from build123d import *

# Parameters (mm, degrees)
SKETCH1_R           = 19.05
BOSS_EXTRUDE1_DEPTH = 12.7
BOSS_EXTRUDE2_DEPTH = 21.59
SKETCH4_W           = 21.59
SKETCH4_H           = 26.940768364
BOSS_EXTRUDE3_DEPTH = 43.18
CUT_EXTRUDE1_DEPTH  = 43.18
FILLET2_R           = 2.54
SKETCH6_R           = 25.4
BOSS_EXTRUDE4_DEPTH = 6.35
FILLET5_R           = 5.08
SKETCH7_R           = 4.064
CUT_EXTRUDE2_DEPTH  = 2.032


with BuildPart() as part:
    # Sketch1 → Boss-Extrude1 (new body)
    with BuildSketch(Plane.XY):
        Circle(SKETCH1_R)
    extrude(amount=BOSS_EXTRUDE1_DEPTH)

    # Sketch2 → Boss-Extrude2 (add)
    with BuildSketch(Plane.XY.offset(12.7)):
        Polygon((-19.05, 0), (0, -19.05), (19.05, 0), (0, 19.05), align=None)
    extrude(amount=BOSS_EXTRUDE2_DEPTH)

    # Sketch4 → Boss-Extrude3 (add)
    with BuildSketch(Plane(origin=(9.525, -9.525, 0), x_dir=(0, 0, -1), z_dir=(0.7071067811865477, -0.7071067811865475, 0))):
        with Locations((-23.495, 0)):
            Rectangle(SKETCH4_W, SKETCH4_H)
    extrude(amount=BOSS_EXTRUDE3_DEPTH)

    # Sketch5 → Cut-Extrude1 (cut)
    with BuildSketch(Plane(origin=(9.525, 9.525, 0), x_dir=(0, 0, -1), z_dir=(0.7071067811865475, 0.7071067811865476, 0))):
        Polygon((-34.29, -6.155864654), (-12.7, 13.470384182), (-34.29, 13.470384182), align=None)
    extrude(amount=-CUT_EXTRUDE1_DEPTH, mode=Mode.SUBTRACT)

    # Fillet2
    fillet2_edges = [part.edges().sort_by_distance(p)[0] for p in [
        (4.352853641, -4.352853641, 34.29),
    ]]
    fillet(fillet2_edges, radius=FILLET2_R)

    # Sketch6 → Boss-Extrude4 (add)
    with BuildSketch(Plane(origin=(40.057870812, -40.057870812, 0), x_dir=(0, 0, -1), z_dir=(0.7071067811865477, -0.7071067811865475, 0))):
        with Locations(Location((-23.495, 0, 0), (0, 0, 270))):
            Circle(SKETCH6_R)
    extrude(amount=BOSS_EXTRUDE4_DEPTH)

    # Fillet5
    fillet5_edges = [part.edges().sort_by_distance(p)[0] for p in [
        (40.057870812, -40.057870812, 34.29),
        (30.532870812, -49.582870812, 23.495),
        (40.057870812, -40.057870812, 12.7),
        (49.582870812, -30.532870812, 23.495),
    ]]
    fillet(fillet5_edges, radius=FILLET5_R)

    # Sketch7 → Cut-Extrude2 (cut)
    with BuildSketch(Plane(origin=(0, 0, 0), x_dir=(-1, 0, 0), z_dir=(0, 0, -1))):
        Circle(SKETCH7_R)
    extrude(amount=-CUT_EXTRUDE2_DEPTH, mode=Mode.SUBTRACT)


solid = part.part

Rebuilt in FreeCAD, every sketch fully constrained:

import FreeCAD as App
import Part
import Sketcher
from FreeCAD import Vector
Q = App.Units.Quantity


def edges_at(feature, points):
    """Names of the edges that pass closest to the given points."""
    edges = feature.Shape.Edges
    near = lambda p: min(range(len(edges)), key=lambda i: edges[i].distToShape(Part.Vertex(*p))[0])
    return sorted({f"Edge{near(p) + 1}" for p in points})

doc = App.newDocument("Part")
params = doc.addObject("Spreadsheet::Sheet", "Params")
for row, (alias, value) in enumerate([
    ("sketch1_diameter", "1.5 in"),
    ("pad1_length", "0.5 in"),
    ("pad2_length", "0.85 in"),
    ("sketch3_width", "0.85 in"),
    ("pad3_length", "1.7 in"),
    ("sketch4_width", "0.85 in"),
    ("pocket1_length", "1.7 in"),
    ("fillet_radius", "0.1 in"),
    ("sketch5_diameter", "2 in"),
    ("pad4_length", "0.25 in"),
    ("fillet2_radius", "0.2 in"),
    ("sketch6_diameter", "0.32 in"),
    ("pocket2_length", "0.08 in"),
], start=1):
    params.set(f"A{row}", alias)
    params.set(f"B{row}", "=" + value)
    params.setAlias(f"B{row}", alias)

body = doc.addObject("PartDesign::Body", "Body")

# Sketch on XY plane
sketch1 = body.newObject("Sketcher::SketchObject", "Sketch")
sketch1.AttachmentSupport = (doc.getObject("XY_Plane"), [""])
sketch1.MapMode = "FlatFace"
sketch1.addGeometry(Part.Circle(Vector(0, 0, 0), Vector(0, 0, 1), 19), False)
sketch1.addConstraint([
    Sketcher.Constraint("Coincident", 0, 3, -1, 1),
    Sketcher.Constraint("Diameter", 0, Q("1.5 in")),
])
sketch1.setExpression("Constraints[1]", "Params.sketch1_diameter")
pad1 = body.newObject("PartDesign::Pad", "Pad")
pad1.Profile = sketch1
pad1.setExpression("Length", "Params.pad1_length")

# Sketch on XY plane
sketch2 = body.newObject("Sketcher::SketchObject", "Sketch001")
sketch2.AttachmentSupport = (doc.getObject("XY_Plane"), [""])
sketch2.MapMode = "FlatFace"
sketch2.AttachmentOffset = App.Placement(Vector(0, 0, 0.5 * 25.4), App.Rotation())
sketch2.addGeometry([
    Part.LineSegment(Vector(-19, 0, 0), Vector(0, -19, 0)),
    Part.LineSegment(Vector(0, -19, 0), Vector(19, 0, 0)),
    Part.LineSegment(Vector(19, 0, 0), Vector(0, 19, 0)),
    Part.LineSegment(Vector(0, 19, 0), Vector(-19, 0, 0)),
], False)
sketch2.addConstraint([
    Sketcher.Constraint("Coincident", 0, 2, 1, 1),
    Sketcher.Constraint("Coincident", 1, 2, 2, 1),
    Sketcher.Constraint("Coincident", 2, 2, 3, 1),
    Sketcher.Constraint("Coincident", 3, 2, 0, 1),
    Sketcher.Constraint("Symmetric", 0, 2, 2, 2, -1, 1),
    Sketcher.Constraint("Symmetric", 1, 2, 3, 2, -1, 1),
    Sketcher.Constraint("PointOnObject", 0, 2, -2),
    Sketcher.Constraint("PointOnObject", 1, 2, -1),
    Sketcher.Constraint("Perpendicular", 0, 1),
    Sketcher.Constraint("DistanceY", 0, 2, 2, 2, Q("1.5 in")),
])
pad2 = body.newObject("PartDesign::Pad", "Pad001")
pad2.Profile = sketch2
pad2.setExpression("Length", "Params.pad2_length")

# Sketch on an angled plane
sketch3 = body.newObject("Sketcher::SketchObject", "Sketch002")
sketch3.Placement = App.Placement(Vector(9.525, -9.525, 0), App.Rotation(Vector(0, 0, -1), Vector(0.707106781, 0.707106781, 0), Vector(0.707106781, -0.707106781, 0), "ZXY"))
sketch3.addGeometry([
    Part.LineSegment(Vector(-34, 13, 0), Vector(-34, -13, 0)),
    Part.LineSegment(Vector(-34, -13, 0), Vector(-13, -13, 0)),
    Part.LineSegment(Vector(-13, -13, 0), Vector(-13, 13, 0)),
    Part.LineSegment(Vector(-13, 13, 0), Vector(-34, 13, 0)),
], False)
sketch3.addConstraint([
    Sketcher.Constraint("Coincident", 0, 2, 1, 1),
    Sketcher.Constraint("Coincident", 1, 2, 2, 1),
    Sketcher.Constraint("Coincident", 2, 2, 3, 1),
    Sketcher.Constraint("Coincident", 3, 2, 0, 1),
    Sketcher.Constraint("Vertical", 0),
    Sketcher.Constraint("Horizontal", 1),
    Sketcher.Constraint("Vertical", 2),
    Sketcher.Constraint("Horizontal", 3),
    Sketcher.Constraint("DistanceX", 1, 1, 1, 2, Q("0.85 in")),
    Sketcher.Constraint("DistanceX", 1, 2, -1, 1, Q("0.5 in")),
    Sketcher.Constraint("DistanceY", 0, 2, 0, 1, Q("26.940768 mm")),
    Sketcher.Constraint("DistanceY", 0, 2, -1, 1, Q("13.470384 mm")),
])
sketch3.setExpression("Constraints[8]", "Params.sketch3_width")
pad3 = body.newObject("PartDesign::Pad", "Pad002")
pad3.Profile = sketch3
pad3.setExpression("Length", "Params.pad3_length")

# Sketch on an angled plane
sketch4 = body.newObject("Sketcher::SketchObject", "Sketch003")
sketch4.Placement = App.Placement(Vector(9.525, 9.525, 0), App.Rotation(Vector(0, 0, -1), Vector(-0.707106781, 0.707106781, 0), Vector(0.707106781, 0.707106781, 0), "ZXY"))
sketch4.addGeometry([
    Part.LineSegment(Vector(-34, -6, 0), Vector(-13, 13, 0)),
    Part.LineSegment(Vector(-13, 13, 0), Vector(-34, 13, 0)),
    Part.LineSegment(Vector(-34, 13, 0), Vector(-34, -6, 0)),
], False)
sketch4.addConstraint([
    Sketcher.Constraint("Coincident", 0, 2, 1, 1),
    Sketcher.Constraint("Coincident", 1, 2, 2, 1),
    Sketcher.Constraint("Coincident", 2, 2, 0, 1),
    Sketcher.Constraint("Horizontal", 1),
    Sketcher.Constraint("Vertical", 2),
    Sketcher.Constraint("DistanceX", 1, 2, 1, 1, Q("0.85 in")),
    Sketcher.Constraint("DistanceX", 0, 2, -1, 1, Q("0.5 in")),
    Sketcher.Constraint("DistanceY", 2, 2, 2, 1, Q("19.626249 mm")),
    Sketcher.Constraint("DistanceY", -1, 1, 0, 2, Q("13.470384 mm")),
])
sketch4.setExpression("Constraints[5]", "Params.sketch4_width")
pocket1 = body.newObject("PartDesign::Pocket", "Pocket")
pocket1.Profile = sketch4
pocket1.setExpression("Length", "Params.pocket1_length")
doc.recompute()

fillet = body.newObject("PartDesign::Fillet", "Fillet")
fillet.Base = (pocket1, edges_at(pocket1, [(4.353, -4.353, 34.29)]))
fillet.setExpression("Radius", "Params.fillet_radius")

# Sketch on an angled plane
sketch5 = body.newObject("Sketcher::SketchObject", "Sketch004")
sketch5.Placement = App.Placement(Vector(40.057871, -40.057871, 0), App.Rotation(Vector(0, 0, -1), Vector(0.707106781, 0.707106781, 0), Vector(0.707106781, -0.707106781, 0), "ZXY"))
sketch5.addGeometry(Part.Circle(Vector(-23, 0, 0), Vector(0, 0, 1), 25), False)
sketch5.addConstraint([
    Sketcher.Constraint("PointOnObject", 0, 3, -1),
    Sketcher.Constraint("Diameter", 0, Q("2 in")),
    Sketcher.Constraint("DistanceX", 0, 3, -1, 1, Q("0.925 in")),
])
sketch5.setExpression("Constraints[1]", "Params.sketch5_diameter")
pad4 = body.newObject("PartDesign::Pad", "Pad003")
pad4.Profile = sketch5
pad4.setExpression("Length", "Params.pad4_length")
doc.recompute()

fillet2 = body.newObject("PartDesign::Fillet", "Fillet001")
fillet2.Base = (pad4, edges_at(pad4, [
    (40.058, -40.058, 34.29),
    (30.533, -49.583, 23.495),
    (40.058, -40.058, 12.7),
    (49.583, -30.533, 23.495),
]))
fillet2.setExpression("Radius", "Params.fillet2_radius")

# Sketch on XY plane
sketch6 = body.newObject("Sketcher::SketchObject", "Sketch005")
sketch6.AttachmentSupport = (doc.getObject("XY_Plane"), [""])
sketch6.MapMode = "FlatFace"
sketch6.addGeometry(Part.Circle(Vector(0, 0, 0), Vector(0, 0, 1), 4.1), False)
sketch6.addConstraint([
    Sketcher.Constraint("Coincident", 0, 3, -1, 1),
    Sketcher.Constraint("Diameter", 0, Q("0.32 in")),
])
sketch6.setExpression("Constraints[1]", "Params.sketch6_diameter")
pocket2 = body.newObject("PartDesign::Pocket", "Pocket001")
pocket2.Profile = sketch6
pocket2.setExpression("Length", "Params.pocket2_length")
pocket2.Reversed = True

doc.recompute()
